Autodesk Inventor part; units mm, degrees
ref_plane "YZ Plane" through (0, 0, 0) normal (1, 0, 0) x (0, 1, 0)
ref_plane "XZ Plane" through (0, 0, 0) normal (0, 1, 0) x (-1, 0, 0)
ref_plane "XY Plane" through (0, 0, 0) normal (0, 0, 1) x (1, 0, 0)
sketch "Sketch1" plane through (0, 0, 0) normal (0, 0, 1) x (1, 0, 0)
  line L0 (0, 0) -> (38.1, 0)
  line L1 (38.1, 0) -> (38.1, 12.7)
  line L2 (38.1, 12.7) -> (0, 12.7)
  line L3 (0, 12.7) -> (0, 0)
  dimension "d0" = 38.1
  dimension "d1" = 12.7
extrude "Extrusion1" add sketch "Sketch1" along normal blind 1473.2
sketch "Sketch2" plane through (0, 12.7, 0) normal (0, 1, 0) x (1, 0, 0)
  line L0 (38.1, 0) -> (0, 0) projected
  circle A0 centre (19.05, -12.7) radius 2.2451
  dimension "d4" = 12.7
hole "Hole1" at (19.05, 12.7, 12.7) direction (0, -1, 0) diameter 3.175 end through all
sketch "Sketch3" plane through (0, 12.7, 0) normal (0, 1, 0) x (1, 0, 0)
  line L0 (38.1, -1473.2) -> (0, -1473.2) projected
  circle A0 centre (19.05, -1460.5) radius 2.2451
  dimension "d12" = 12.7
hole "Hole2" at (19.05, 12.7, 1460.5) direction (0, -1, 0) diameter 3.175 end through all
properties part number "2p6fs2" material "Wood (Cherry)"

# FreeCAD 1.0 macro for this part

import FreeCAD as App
import Part
import Sketcher
from FreeCAD import Vector
Q = App.Units.Quantity

doc = App.newDocument("Part")
body = doc.addObject("PartDesign::Body", "Body")

# Sketch on XY plane
sketch1 = body.newObject("Sketcher::SketchObject", "Sketch")
sketch1.AttachmentSupport = (doc.getObject("XY_Plane"), [""])
sketch1.MapMode = "FlatFace"
sketch1.addGeometry([
    Part.LineSegment(Vector(0, 13, 0), Vector(0, 0, 0)),
    Part.LineSegment(Vector(0, 0, 0), Vector(38, 0, 0)),
    Part.LineSegment(Vector(38, 0, 0), Vector(38, 13, 0)),
    Part.LineSegment(Vector(38, 13, 0), Vector(0, 13, 0)),
], False)
sketch1.addConstraint([
    Sketcher.Constraint("Coincident", 0, 2, 1, 1),
    Sketcher.Constraint("Coincident", 1, 2, 2, 1),
    Sketcher.Constraint("Coincident", 2, 2, 3, 1),
    Sketcher.Constraint("Coincident", 3, 2, 0, 1),
    Sketcher.Constraint("Vertical", 0),
    Sketcher.Constraint("Horizontal", 1),
    Sketcher.Constraint("Vertical", 2),
    Sketcher.Constraint("Horizontal", 3),
    Sketcher.Constraint("Coincident", 0, 2, -1, 1),
    Sketcher.Constraint("DistanceX", 1, 1, 1, 2, Q("1.5 in")),
    Sketcher.Constraint("DistanceY", 0, 2, 0, 1, Q("0.5 in")),
])
pad1 = body.newObject("PartDesign::Pad", "Pad")
pad1.Profile = sketch1
pad1.Length = Q("58 in")

# Sketch on XZ plane
sketch2 = body.newObject("Sketcher::SketchObject", "Sketch001")
sketch2.AttachmentSupport = (doc.getObject("XZ_Plane"), [""])
sketch2.MapMode = "FlatFace"
sketch2.AttachmentOffset = App.Placement(Vector(0, 0, -0.5 * 25.4), App.Rotation())
sketch2.addGeometry(Part.Circle(Vector(19.1, 12.7, 0), Vector(0, 0, 1), 1.6), False)
sketch2.addConstraint([
    Sketcher.Constraint("Diameter", 0, Q("0.125 in")),
    Sketcher.Constraint("DistanceY", -1, 1, 0, 3, Q("0.5 in")),
    Sketcher.Constraint("DistanceX", -1, 1, 0, 3, Q("0.75 in")),
])
doc.recompute()
hole = body.newObject("PartDesign::Hole", "Hole")
hole.Profile = sketch2
hole.ThreadType = "None"
hole.Diameter = Q("0.125 in")
hole.DepthType = "ThroughAll"
hole.Reversed = True

# Sketch on XZ plane
sketch3 = body.newObject("Sketcher::SketchObject", "Sketch002")
sketch3.AttachmentSupport = (doc.getObject("XZ_Plane"), [""])
sketch3.MapMode = "FlatFace"
sketch3.AttachmentOffset = App.Placement(Vector(0, 0, -0.5 * 25.4), App.Rotation())
sketch3.addGeometry(Part.Circle(Vector(19.1, 1460.5, 0), Vector(0, 0, 1), 1.6), False)
sketch3.addConstraint([
    Sketcher.Constraint("Diameter", 0, Q("0.125 in")),
    Sketcher.Constraint("DistanceY", -1, 1, 0, 3, Q("57.5 in")),
    Sketcher.Constraint("DistanceX", -1, 1, 0, 3, Q("0.75 in")),
])
doc.recompute()
hole2 = body.newObject("PartDesign::Hole", "Hole001")
hole2.Profile = sketch3
hole2.ThreadType = "None"
hole2.Diameter = Q("0.125 in")
hole2.DepthType = "ThroughAll"
hole2.Reversed = True

doc.recompute()
